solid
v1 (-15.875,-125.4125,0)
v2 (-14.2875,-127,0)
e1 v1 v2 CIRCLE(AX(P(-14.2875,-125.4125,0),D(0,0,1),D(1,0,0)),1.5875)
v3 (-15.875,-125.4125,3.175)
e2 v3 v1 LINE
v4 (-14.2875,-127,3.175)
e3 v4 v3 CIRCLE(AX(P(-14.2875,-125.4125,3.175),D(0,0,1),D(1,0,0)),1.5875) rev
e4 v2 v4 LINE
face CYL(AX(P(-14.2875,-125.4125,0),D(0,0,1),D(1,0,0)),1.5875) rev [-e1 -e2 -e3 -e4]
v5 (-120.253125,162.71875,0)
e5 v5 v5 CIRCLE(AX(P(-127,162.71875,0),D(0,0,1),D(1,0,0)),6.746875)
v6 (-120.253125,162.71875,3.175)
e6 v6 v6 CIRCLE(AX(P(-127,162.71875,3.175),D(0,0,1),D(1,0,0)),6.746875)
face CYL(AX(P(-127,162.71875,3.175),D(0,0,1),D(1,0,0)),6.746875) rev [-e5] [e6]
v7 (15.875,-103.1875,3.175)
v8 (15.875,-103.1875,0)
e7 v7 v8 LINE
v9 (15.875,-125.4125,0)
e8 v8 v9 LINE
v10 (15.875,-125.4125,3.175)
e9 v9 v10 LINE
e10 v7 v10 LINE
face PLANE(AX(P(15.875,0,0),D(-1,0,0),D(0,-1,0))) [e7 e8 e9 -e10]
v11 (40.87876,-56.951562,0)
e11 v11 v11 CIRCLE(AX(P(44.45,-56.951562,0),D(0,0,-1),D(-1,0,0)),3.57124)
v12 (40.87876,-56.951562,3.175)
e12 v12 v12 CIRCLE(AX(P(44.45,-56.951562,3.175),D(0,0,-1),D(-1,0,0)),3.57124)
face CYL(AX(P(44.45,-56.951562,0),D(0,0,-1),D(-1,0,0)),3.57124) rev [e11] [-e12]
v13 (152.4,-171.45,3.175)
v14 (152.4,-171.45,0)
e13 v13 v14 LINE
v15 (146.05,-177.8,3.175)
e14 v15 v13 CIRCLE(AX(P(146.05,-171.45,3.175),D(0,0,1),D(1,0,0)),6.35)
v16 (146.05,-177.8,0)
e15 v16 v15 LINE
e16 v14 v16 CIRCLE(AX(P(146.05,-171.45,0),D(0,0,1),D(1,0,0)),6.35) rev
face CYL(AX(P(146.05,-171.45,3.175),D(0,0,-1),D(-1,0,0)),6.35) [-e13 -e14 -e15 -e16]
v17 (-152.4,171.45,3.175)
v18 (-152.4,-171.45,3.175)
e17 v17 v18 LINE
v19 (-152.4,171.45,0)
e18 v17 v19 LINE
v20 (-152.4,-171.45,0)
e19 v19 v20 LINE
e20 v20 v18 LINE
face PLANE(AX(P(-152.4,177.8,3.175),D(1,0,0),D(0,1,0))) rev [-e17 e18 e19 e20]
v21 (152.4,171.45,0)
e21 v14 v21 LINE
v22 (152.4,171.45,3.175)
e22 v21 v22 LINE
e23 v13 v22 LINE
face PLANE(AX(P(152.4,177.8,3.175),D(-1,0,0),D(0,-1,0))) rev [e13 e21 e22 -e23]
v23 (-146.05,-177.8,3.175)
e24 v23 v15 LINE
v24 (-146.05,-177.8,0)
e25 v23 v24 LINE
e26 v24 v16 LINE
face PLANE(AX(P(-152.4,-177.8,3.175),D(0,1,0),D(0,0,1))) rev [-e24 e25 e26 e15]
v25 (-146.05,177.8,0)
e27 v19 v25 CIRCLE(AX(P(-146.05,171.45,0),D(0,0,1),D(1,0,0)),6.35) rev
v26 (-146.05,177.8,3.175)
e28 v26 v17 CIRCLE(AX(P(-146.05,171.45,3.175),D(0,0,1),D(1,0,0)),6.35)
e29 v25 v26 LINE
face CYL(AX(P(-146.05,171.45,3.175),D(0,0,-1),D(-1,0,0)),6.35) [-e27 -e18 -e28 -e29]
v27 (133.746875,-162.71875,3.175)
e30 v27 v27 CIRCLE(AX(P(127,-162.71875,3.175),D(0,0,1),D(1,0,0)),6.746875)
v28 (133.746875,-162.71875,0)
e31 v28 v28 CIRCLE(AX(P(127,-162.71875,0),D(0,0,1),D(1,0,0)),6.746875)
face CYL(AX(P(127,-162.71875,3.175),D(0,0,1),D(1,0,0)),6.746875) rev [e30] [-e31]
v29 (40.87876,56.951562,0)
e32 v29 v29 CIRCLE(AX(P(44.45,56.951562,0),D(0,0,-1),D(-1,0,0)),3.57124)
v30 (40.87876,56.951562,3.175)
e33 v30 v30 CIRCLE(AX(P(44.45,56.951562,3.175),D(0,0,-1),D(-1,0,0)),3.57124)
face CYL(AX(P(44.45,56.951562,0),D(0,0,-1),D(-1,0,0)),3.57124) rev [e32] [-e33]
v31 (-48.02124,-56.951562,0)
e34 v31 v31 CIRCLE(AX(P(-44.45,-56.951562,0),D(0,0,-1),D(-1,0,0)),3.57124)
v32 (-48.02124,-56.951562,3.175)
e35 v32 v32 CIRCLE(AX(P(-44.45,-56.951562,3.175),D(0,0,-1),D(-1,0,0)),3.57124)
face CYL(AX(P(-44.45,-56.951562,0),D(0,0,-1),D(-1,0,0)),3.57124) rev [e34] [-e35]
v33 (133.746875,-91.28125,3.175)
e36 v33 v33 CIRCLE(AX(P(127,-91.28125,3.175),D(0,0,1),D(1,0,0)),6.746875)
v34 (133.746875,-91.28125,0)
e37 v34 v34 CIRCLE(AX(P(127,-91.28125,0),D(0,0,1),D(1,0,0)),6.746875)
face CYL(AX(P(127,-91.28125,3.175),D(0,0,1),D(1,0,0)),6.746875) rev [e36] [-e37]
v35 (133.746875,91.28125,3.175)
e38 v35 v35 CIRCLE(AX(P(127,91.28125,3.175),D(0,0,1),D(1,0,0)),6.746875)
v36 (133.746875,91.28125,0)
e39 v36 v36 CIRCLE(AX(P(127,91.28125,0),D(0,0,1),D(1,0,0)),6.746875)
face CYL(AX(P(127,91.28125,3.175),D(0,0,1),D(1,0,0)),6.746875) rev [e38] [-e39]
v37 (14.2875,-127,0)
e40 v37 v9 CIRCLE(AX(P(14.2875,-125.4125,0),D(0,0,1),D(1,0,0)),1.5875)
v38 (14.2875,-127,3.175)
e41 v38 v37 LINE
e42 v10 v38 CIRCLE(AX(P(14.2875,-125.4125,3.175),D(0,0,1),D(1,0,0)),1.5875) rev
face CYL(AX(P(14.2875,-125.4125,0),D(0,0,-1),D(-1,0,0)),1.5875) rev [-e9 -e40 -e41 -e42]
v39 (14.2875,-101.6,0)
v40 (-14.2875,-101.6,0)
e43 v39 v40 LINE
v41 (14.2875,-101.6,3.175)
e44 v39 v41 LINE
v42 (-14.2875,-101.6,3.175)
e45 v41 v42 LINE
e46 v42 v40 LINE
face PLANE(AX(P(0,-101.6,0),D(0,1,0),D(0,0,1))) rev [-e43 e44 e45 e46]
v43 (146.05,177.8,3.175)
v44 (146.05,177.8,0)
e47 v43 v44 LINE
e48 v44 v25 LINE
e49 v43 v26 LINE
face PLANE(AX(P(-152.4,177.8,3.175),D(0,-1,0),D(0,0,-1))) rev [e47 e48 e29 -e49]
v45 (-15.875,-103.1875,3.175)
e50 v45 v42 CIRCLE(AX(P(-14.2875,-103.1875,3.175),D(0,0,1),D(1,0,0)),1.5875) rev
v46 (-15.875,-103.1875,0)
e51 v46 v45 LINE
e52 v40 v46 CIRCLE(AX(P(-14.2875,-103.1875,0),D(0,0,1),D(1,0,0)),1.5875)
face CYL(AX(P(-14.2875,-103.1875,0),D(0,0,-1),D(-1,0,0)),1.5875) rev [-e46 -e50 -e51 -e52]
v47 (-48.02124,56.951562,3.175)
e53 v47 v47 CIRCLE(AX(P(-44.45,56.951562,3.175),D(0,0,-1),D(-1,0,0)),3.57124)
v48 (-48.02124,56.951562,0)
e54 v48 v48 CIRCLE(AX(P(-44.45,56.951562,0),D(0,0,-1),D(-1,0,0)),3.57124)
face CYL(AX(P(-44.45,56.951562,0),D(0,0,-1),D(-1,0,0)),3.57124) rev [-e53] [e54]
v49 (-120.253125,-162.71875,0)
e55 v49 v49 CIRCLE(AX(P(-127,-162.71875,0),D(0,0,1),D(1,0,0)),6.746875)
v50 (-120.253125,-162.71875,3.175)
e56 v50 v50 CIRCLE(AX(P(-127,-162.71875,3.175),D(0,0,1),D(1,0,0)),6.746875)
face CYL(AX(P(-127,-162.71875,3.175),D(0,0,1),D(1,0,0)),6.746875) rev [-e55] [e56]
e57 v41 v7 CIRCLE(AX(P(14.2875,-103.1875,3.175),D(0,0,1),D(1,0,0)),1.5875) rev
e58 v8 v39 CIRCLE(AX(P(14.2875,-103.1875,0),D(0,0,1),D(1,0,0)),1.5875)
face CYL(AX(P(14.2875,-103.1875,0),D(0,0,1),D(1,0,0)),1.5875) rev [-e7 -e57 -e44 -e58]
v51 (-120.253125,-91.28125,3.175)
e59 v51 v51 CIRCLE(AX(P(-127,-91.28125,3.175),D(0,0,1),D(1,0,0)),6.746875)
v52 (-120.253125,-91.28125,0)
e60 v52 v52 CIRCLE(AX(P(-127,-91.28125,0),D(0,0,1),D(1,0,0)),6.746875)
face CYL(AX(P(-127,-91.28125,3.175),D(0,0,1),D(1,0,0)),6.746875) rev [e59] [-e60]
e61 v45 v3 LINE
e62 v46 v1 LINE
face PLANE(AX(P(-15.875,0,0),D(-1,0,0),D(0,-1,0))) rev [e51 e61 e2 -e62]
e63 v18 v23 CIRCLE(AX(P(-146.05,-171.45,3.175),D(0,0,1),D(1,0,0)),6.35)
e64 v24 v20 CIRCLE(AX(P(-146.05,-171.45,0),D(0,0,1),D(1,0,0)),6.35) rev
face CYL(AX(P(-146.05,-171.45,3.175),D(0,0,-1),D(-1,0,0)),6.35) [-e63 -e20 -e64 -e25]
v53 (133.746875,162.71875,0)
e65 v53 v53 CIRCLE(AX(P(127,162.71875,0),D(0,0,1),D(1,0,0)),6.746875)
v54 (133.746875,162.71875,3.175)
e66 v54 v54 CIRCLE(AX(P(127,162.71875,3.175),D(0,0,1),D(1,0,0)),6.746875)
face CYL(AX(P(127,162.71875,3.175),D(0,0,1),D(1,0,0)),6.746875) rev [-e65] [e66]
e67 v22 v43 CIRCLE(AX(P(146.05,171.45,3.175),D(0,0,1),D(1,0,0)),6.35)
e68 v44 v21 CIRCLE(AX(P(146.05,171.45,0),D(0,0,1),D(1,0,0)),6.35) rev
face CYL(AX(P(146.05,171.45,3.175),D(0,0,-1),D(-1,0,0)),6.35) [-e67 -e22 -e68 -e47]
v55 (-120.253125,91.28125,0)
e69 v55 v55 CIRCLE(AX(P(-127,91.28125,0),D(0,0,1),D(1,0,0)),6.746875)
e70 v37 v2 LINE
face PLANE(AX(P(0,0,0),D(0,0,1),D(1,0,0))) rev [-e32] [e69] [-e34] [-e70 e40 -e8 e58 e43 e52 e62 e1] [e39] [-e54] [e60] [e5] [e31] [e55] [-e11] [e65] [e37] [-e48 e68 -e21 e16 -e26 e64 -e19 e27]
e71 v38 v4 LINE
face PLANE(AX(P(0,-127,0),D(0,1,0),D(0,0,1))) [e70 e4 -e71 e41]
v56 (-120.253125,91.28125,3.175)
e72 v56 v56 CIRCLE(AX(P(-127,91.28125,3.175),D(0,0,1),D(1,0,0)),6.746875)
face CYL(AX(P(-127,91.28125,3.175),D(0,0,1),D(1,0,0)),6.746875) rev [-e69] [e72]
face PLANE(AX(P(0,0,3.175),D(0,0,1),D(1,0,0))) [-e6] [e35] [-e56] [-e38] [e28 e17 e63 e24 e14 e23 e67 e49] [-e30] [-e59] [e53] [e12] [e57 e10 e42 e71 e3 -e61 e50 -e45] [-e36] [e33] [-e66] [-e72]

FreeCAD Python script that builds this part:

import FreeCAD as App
import Part
import Sketcher
Q = App.Units.Quantity


def edges_at(feature, points):
    """Names of the edges that pass closest to the given points."""
    edges = feature.Shape.Edges
    near = lambda p: min(range(len(edges)), key=lambda i: edges[i].distToShape(Part.Vertex(*p))[0])
    return sorted({f"Edge{near(p) + 1}" for p in points})


def add_polygon(sketch, points):
    """Adds a closed chain of lines whose ends are joined by coincident constraints."""
    first, n = sketch.GeometryCount, len(points)
    for a, b in zip(points, points[1:] + points[:1]):
        sketch.addGeometry(Part.LineSegment(App.Vector(*a, 0), App.Vector(*b, 0)), False)
    for i in range(n):
        sketch.addConstraint(Sketcher.Constraint("Coincident", first + i, 2, first + (i + 1) % n, 1))

doc = App.newDocument("Part")
params = doc.addObject("Spreadsheet::Sheet", "Params")
for row, (alias, value) in enumerate([
    ("sketch1_width", "12 in"),
    ("sketch1_height", "14 in"),
    ("pad1_length", "0.125 in"),
    ("sketch2_diameter", "0.53125 in"),
    ("hole_diameter", "0.53125 in"),
    ("fillet_radius", "0.25 in"),
    ("hole2_diameter", "0.2812 in"),
    ("sketch4_height", "1 in"),
    ("sketch4_width", "1.25 in"),
    ("fillet2_radius", "0.0625 in"),
], start=1):
    params.set(f"A{row}", alias)
    params.set(f"B{row}", "=" + value)
    params.setAlias(f"B{row}", alias)

body = doc.addObject("PartDesign::Body", "Body")

sketch1 = body.newObject("Sketcher::SketchObject", "Sketch")
sketch1.AttachmentSupport = (doc.getObject("XY_Plane"), [""])
sketch1.MapMode = "FlatFace"
add_polygon(sketch1, [(-152, 178), (-152, -178), (152, -178), (152, 178)])
sketch1.addConstraint([
    Sketcher.Constraint("Vertical", 0),
    Sketcher.Constraint("Horizontal", 1),
    Sketcher.Constraint("Vertical", 2),
    Sketcher.Constraint("Horizontal", 3),
    Sketcher.Constraint("Symmetric", 0, 2, 2, 2, -1, 1),
    Sketcher.Constraint("DistanceX", 1, 1, 1, 2, Q("12 in")),
    Sketcher.Constraint("DistanceY", 0, 2, 0, 1, Q("14 in")),
])
sketch1.setExpression("Constraints[9]", "Params.sketch1_width")
sketch1.setExpression("Constraints[10]", "Params.sketch1_height")
pad1 = body.newObject("PartDesign::Pad", "Pad")
pad1.Profile = sketch1
pad1.setExpression("Length", "Params.pad1_length")

sketch2 = body.newObject("Sketcher::SketchObject", "Sketch001")
sketch2.AttachmentSupport = (doc.getObject("XY_Plane"), [""])
sketch2.MapMode = "FlatFace"
sketch2.AttachmentOffset = App.Placement(App.Vector(0, 0, 0.125 * 25.4), App.Rotation())
sketch2.addGeometry([
    Part.Circle(App.Vector(-127, 163, 0), App.Vector(0, 0, 1), 7),
    Part.Circle(App.Vector(-127, 91, 0), App.Vector(0, 0, 1), 7),
    Part.Circle(App.Vector(-127, -91, 0), App.Vector(0, 0, 1), 7),
    Part.Circle(App.Vector(-127, -163, 0), App.Vector(0, 0, 1), 7),
    Part.Circle(App.Vector(127, -163, 0), App.Vector(0, 0, 1), 7),
    Part.Circle(App.Vector(127, -91, 0), App.Vector(0, 0, 1), 7),
    Part.Circle(App.Vector(127, 91, 0), App.Vector(0, 0, 1), 7),
    Part.Circle(App.Vector(127, 163, 0), App.Vector(0, 0, 1), 7),
], False)
sketch2.addConstraint([
    Sketcher.Constraint("Equal", 0, 1),
    Sketcher.Constraint("Equal", 1, 2),
    Sketcher.Constraint("Equal", 2, 3),
    Sketcher.Constraint("Equal", 3, 4),
    Sketcher.Constraint("Equal", 4, 5),
    Sketcher.Constraint("Equal", 5, 6),
    Sketcher.Constraint("Equal", 6, 7),
    Sketcher.Constraint("Symmetric", 0, 3, 4, 3, -1, 1),
    Sketcher.Constraint("Symmetric", 1, 3, 5, 3, -1, 1),
    Sketcher.Constraint("Symmetric", 2, 3, 6, 3, -1, 1),
    Sketcher.Constraint("Symmetric", 3, 3, 7, 3, -1, 1),
    Sketcher.Constraint("Symmetric", 3, 3, 4, 3, -2),
    Sketcher.Constraint("Symmetric", 2, 3, 5, 3, -2),
    Sketcher.Constraint("Vertical", 0, 3, 1, 3),
    Sketcher.Constraint("Diameter", 0, Q("0.53125 in")),
    Sketcher.Constraint("DistanceX", 0, 3, -1, 1, Q("5 in")),
    Sketcher.Constraint("DistanceY", 2, 3, 0, 3, Q("10 in")),
    Sketcher.Constraint("DistanceY", -1, 1, 0, 3, Q("6.40625 in")),
])
sketch2.setExpression("Constraints[14]", "Params.sketch2_diameter")
doc.recompute()
hole = body.newObject("PartDesign::Hole", "Hole")
hole.Profile = sketch2
hole.ThreadType = "None"
hole.setExpression("Diameter", "Params.hole_diameter")
hole.DepthType = "ThroughAll"
doc.recompute()

fillet = body.newObject("PartDesign::Fillet", "Fillet")
fillet.Base = (hole, edges_at(hole, [
    (152.4, -177.8, 1.587),
    (-152.4, -177.8, 1.587),
    (-152.4, 177.8, 1.587),
    (152.4, 177.8, 1.587),
]))
fillet.setExpression("Radius", "Params.fillet_radius")

sketch3 = body.newObject("Sketcher::SketchObject", "Sketch002")
sketch3.AttachmentSupport = (doc.getObject("XY_Plane"), [""])
sketch3.MapMode = "FlatFace"
sketch3.addGeometry([
    Part.Circle(App.Vector(44.5, 57, 0), App.Vector(0, 0, 1), 3.6),
    Part.Circle(App.Vector(44.5, -57, 0), App.Vector(0, 0, 1), 3.6),
    Part.Circle(App.Vector(-44.5, 57, 0), App.Vector(0, 0, 1), 3.6),
    Part.Circle(App.Vector(-44.5, -57, 0), App.Vector(0, 0, 1), 3.6),
], False)
sketch3.addConstraint([
    Sketcher.Constraint("Equal", 0, 1),
    Sketcher.Constraint("Equal", 1, 2),
    Sketcher.Constraint("Equal", 2, 3),
    Sketcher.Constraint("Symmetric", 1, 3, 2, 3, -1, 1),
    Sketcher.Constraint("Symmetric", 0, 3, 3, 3, -1, 1),
    Sketcher.Constraint("Symmetric", 0, 3, 2, 3, -2),
    Sketcher.Constraint("Diameter", 0, Q("0.2812 in")),
    Sketcher.Constraint("DistanceX", 2, 3, 0, 3, Q("3.5 in")),
    Sketcher.Constraint("DistanceY", 1, 3, 0, 3, Q("4.484375 in")),
])
doc.recompute()
hole2 = body.newObject("PartDesign::Hole", "Hole001")
hole2.Profile = sketch3
hole2.ThreadType = "None"
hole2.setExpression("Diameter", "Params.hole2_diameter")
hole2.DepthType = "ThroughAll"
hole2.Reversed = True

sketch4 = body.newObject("Sketcher::SketchObject", "Sketch003")
sketch4.AttachmentSupport = (doc.getObject("XY_Plane"), [""])
sketch4.MapMode = "FlatFace"
sketch4.AttachmentOffset = App.Placement(App.Vector(0, 0, 0.125 * 25.4), App.Rotation())
add_polygon(sketch4, [(-16, -102), (-16, -127), (16, -127), (16, -102)])
sketch4.addConstraint([
    Sketcher.Constraint("Vertical", 0),
    Sketcher.Constraint("Horizontal", 1),
    Sketcher.Constraint("Vertical", 2),
    Sketcher.Constraint("Horizontal", 3),
    Sketcher.Constraint("DistanceY", 0, 2, 0, 1, Q("1 in")),
    Sketcher.Constraint("DistanceY", 0, 2, -1, 1, Q("5 in")),
    Sketcher.Constraint("DistanceX", 1, 1, 1, 2, Q("1.25 in")),
    Sketcher.Constraint("DistanceX", 0, 2, -1, 1, Q("0.625 in")),
])
sketch4.setExpression("Constraints[8]", "Params.sketch4_height")
sketch4.setExpression("Constraints[10]", "Params.sketch4_width")
pocket1 = body.newObject("PartDesign::Pocket", "Pocket")
pocket1.Profile = sketch4
pocket1.Type = "ThroughAll"
doc.recompute()

fillet2 = body.newObject("PartDesign::Fillet", "Fillet001")
fillet2.Base = (pocket1, edges_at(pocket1, [
    (-15.875, -101.6, 1.587),
    (15.875, -101.6, 1.587),
    (15.875, -127, 1.587),
    (-15.875, -127, 1.587),
]))
fillet2.setExpression("Radius", "Params.fillet2_radius")

doc.recompute()
